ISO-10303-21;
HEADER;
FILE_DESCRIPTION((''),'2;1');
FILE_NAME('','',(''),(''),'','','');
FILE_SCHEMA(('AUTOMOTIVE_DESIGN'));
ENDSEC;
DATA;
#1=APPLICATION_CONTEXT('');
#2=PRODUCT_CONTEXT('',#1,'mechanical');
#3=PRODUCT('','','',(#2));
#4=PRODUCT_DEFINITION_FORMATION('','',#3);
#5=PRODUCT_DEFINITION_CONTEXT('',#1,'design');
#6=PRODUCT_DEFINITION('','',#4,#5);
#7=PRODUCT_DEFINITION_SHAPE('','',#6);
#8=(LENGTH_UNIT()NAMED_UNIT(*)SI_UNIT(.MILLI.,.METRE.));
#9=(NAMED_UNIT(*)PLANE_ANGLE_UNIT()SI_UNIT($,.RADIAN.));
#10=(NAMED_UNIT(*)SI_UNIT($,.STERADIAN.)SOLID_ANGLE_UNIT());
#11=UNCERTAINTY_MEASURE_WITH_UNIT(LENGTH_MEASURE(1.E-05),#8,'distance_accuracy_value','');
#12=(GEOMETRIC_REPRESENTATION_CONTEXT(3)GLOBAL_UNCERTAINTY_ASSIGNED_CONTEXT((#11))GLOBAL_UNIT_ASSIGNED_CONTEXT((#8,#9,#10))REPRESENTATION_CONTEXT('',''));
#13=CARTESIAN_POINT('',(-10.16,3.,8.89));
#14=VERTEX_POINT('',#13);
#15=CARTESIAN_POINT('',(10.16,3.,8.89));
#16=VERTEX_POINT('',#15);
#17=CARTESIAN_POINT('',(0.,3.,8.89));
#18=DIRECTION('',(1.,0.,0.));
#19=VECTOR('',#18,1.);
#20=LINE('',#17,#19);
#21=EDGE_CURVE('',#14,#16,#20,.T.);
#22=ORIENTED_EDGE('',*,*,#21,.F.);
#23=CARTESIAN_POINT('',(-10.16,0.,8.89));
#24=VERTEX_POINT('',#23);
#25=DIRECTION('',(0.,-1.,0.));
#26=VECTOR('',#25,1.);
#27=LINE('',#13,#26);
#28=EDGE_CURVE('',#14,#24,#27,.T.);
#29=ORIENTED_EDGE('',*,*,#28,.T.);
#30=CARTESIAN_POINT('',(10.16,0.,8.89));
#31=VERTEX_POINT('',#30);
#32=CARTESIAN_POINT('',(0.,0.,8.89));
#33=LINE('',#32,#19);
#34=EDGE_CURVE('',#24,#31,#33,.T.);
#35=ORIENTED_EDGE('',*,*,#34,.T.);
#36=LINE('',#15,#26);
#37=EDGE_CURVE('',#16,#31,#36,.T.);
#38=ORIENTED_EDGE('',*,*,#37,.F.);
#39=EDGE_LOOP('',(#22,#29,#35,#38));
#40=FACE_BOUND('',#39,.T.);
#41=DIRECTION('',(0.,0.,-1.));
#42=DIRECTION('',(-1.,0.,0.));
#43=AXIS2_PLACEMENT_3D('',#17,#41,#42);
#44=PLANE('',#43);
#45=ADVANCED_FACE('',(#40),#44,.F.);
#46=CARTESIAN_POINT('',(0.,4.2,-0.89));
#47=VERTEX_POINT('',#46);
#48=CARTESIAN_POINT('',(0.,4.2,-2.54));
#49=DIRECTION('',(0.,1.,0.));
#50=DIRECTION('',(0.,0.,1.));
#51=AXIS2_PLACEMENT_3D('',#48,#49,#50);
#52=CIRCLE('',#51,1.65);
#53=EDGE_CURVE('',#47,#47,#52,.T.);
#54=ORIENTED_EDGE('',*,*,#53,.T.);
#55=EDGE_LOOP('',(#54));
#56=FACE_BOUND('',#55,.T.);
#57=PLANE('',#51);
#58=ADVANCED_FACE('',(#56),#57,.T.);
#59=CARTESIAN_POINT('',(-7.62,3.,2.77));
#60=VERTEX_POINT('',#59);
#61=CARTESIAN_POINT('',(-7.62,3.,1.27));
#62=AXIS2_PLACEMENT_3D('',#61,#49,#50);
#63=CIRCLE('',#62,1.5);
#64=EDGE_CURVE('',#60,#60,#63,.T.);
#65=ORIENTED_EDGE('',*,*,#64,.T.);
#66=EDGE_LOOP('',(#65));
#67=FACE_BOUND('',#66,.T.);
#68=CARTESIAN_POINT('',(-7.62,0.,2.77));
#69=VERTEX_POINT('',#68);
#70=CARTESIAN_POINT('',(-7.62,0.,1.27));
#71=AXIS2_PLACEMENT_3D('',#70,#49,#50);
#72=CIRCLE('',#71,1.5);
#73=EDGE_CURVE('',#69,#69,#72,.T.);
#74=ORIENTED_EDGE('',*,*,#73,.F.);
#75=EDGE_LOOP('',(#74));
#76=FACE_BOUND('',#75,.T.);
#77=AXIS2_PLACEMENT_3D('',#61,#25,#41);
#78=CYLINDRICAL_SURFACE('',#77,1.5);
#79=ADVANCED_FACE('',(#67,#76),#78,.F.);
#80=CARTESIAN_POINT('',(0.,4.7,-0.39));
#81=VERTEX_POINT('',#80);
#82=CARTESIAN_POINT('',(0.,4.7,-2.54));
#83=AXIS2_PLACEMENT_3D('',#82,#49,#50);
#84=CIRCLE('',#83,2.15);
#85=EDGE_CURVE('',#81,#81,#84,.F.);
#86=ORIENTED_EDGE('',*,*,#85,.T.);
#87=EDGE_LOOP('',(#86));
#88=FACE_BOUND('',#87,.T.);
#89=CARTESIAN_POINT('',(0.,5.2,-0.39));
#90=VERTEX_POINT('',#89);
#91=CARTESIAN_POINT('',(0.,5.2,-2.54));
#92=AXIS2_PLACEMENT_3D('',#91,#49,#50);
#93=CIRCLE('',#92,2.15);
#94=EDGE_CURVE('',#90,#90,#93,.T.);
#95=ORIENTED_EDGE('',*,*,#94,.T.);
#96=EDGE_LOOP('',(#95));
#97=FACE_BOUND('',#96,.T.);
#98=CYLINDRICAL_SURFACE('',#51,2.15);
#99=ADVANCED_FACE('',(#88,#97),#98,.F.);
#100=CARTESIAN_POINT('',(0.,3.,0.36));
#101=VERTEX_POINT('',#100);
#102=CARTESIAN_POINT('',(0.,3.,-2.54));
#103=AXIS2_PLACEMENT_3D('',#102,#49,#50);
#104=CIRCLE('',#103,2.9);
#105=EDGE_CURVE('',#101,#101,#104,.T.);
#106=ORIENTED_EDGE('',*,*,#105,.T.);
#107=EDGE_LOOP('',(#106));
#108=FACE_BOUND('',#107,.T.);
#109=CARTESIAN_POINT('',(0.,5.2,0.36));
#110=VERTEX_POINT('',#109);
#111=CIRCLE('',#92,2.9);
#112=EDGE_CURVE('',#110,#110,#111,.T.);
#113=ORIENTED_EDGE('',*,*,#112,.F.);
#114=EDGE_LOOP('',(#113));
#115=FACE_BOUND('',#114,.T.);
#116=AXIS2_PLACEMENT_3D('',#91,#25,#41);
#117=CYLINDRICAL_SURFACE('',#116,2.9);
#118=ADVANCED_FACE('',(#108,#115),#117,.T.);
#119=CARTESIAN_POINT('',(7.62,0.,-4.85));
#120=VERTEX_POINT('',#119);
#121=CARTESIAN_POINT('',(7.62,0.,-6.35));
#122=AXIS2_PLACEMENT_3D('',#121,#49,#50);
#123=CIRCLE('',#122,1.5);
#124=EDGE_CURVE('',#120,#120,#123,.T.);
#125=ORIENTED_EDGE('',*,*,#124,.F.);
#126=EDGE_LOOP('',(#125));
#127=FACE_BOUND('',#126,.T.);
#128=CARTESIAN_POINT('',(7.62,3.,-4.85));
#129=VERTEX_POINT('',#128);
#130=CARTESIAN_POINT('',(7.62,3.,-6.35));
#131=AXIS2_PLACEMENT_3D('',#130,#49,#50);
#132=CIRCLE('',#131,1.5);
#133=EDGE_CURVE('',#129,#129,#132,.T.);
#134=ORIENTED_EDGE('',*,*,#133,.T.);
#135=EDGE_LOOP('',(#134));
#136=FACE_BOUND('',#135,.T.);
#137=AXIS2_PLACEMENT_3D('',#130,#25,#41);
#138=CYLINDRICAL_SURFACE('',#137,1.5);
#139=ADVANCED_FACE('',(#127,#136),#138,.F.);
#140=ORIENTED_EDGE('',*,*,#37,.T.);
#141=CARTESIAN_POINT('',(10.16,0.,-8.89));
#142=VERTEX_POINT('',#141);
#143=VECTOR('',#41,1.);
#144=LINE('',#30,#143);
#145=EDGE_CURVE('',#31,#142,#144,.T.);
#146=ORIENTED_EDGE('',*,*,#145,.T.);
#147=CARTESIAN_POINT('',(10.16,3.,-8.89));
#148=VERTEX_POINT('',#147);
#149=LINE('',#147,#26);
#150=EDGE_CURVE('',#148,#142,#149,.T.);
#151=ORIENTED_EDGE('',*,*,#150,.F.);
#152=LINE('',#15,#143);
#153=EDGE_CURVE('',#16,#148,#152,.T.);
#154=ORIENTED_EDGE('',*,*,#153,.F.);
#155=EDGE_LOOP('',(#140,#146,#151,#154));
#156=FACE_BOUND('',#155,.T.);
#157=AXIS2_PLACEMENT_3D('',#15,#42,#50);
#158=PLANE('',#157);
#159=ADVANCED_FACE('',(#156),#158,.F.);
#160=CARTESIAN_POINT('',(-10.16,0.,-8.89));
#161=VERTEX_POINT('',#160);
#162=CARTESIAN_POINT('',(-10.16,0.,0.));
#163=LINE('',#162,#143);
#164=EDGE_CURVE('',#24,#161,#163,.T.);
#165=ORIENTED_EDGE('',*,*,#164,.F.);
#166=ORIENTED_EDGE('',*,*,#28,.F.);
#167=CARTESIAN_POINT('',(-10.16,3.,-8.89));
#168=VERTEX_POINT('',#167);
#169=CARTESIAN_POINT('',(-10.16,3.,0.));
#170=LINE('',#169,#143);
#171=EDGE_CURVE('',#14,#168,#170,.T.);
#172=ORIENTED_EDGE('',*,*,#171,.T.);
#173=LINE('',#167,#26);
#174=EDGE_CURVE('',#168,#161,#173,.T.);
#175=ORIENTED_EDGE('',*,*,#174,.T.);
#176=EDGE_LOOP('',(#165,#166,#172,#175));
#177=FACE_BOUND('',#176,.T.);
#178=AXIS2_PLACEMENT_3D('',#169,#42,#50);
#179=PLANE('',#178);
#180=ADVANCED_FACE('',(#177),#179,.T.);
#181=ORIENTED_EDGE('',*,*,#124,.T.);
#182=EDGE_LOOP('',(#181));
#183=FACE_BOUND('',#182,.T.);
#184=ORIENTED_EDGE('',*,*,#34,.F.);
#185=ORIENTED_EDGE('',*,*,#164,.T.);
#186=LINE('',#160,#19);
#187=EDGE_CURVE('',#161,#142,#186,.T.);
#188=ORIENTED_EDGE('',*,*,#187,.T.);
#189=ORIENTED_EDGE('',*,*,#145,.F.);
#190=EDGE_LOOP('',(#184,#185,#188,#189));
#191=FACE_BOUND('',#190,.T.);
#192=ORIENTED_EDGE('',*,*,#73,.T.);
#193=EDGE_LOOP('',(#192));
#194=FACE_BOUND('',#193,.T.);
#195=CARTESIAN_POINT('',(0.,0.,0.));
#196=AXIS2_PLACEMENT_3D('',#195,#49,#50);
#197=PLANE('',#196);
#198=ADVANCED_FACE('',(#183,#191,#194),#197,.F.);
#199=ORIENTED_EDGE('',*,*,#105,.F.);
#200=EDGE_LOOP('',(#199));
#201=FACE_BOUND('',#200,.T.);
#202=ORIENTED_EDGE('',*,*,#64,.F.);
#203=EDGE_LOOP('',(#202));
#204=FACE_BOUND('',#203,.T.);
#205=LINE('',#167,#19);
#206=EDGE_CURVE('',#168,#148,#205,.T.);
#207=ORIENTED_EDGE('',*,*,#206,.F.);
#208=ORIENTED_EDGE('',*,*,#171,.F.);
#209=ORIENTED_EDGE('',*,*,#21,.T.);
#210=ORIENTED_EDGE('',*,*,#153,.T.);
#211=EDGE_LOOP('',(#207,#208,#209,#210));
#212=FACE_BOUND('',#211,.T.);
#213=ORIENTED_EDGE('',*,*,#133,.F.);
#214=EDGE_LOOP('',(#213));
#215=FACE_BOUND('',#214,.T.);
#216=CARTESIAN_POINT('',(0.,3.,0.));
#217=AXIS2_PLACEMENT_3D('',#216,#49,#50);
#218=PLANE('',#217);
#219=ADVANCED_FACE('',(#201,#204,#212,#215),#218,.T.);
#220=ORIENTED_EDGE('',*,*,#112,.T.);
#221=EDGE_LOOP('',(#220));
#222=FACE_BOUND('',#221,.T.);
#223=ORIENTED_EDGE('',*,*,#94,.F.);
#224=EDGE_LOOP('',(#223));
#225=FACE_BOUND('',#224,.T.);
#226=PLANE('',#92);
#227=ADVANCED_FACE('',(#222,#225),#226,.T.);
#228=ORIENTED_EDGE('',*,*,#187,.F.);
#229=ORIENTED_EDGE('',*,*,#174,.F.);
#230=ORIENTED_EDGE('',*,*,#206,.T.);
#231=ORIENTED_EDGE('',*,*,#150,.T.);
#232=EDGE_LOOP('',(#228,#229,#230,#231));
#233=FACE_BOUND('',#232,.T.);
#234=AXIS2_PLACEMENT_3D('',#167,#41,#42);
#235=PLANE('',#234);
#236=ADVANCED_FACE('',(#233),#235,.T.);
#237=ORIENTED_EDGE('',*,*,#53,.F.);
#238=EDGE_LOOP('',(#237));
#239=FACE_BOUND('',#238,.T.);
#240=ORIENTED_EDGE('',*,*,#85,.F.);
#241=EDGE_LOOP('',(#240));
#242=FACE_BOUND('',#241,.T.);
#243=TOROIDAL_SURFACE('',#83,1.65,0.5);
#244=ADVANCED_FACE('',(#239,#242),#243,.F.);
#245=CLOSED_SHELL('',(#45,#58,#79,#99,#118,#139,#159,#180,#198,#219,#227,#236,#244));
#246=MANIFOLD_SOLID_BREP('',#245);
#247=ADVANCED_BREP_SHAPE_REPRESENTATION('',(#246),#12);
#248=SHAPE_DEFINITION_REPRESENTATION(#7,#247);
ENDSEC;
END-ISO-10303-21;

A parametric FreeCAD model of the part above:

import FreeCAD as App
import Part
import Sketcher

V = App.Vector
Q = App.Units.Quantity


def edges_at(feature, points):
    """Names of the edges that pass closest to the given points."""
    edges = feature.Shape.Edges
    near = lambda p: min(range(len(edges)), key=lambda i: edges[i].distToShape(Part.Vertex(*p))[0])
    return sorted({f"Edge{near(p) + 1}" for p in points})


def add_polygon(sketch, points):
    """Adds a closed chain of lines whose ends are joined by coincident constraints."""
    first, n = sketch.GeometryCount, len(points)
    for a, b in zip(points, points[1:] + points[:1]):
        sketch.addGeometry(Part.LineSegment(App.Vector(*a, 0), App.Vector(*b, 0)), False)
    for i in range(n):
        sketch.addConstraint(Sketcher.Constraint("Coincident", first + i, 2, first + (i + 1) % n, 1))

doc = App.newDocument("Part")
params = doc.addObject("Spreadsheet::Sheet", "Params")
for row, (alias, value) in enumerate([
    ("sketch1_diameter", "3 mm"),
    ("sketch1_width", "20.32 mm"),
    ("sketch1_height", "17.78 mm"),
    ("pad1_length", "3 mm"),
    ("sketch2_diameter", "5.8 mm"),
    ("pad2_length", "2.2 mm"),
    ("sketch3_diameter", "4.3 mm"),
    ("pocket1_length", "1 mm"),
    ("fillet_radius", "0.5 mm"),
], start=1):
    params.set(f"A{row}", alias)
    params.set(f"B{row}", "=" + value)
    params.setAlias(f"B{row}", alias)

body = doc.addObject("PartDesign::Body", "Body")

# Sketch on XZ plane
sketch1 = doc.addObject("Sketcher::SketchObject", "Sketch")
body.addObject(sketch1)
sketch1.AttachmentSupport = (doc.XZ_Plane, [""])
sketch1.MapMode = "FlatFace"
add_polygon(sketch1, [(-10.2, -8.9), (-10.2, 8.9), (10.2, 8.9), (10.2, -8.9)])  # lines 0-3
sketch1.addGeometry(Part.Circle(V(-7.6, 1.3, 0), V(0, 0, 1), 1.5), False)  # 4
sketch1.addGeometry(Part.Circle(V(7.6, -6.3, 0), V(0, 0, 1), 1.5), False)  # 5
sketch1.addConstraint(Sketcher.Constraint("Vertical", 0))
sketch1.addConstraint(Sketcher.Constraint("Horizontal", 1))
sketch1.addConstraint(Sketcher.Constraint("Vertical", 2))
sketch1.addConstraint(Sketcher.Constraint("Horizontal", 3))
sketch1.addConstraint(Sketcher.Constraint("Equal", 4, 5))
sketch1.addConstraint(Sketcher.Constraint("Symmetric", 0, 2, 2, 2, -1, 1))
sketch1.addConstraint(Sketcher.Constraint("Diameter", 4, Q("3 mm")))
sketch1.addConstraint(Sketcher.Constraint("DistanceX", 1, 1, 1, 2, Q("20.32 mm")))
sketch1.addConstraint(Sketcher.Constraint("DistanceY", 0, 1, 0, 2, Q("17.78 mm")))
sketch1.addConstraint(Sketcher.Constraint("DistanceX", 4, 3, -1, 1, Q("7.62 mm")))
sketch1.addConstraint(Sketcher.Constraint("DistanceY", -1, 1, 4, 3, Q("1.27 mm")))
sketch1.addConstraint(Sketcher.Constraint("DistanceX", -1, 1, 5, 3, Q("7.62 mm")))
sketch1.addConstraint(Sketcher.Constraint("DistanceY", 5, 3, -1, 1, Q("6.35 mm")))
sketch1.setExpression("Constraints[10]", "Params.sketch1_diameter")
sketch1.setExpression("Constraints[11]", "Params.sketch1_width")
sketch1.setExpression("Constraints[12]", "Params.sketch1_height")
pad1 = doc.addObject("PartDesign::Pad", "Pad")
body.addObject(pad1)
pad1.Profile = sketch1
pad1.setExpression("Length", "Params.pad1_length")
pad1.Reversed = True

# Sketch on XZ plane
sketch2 = doc.addObject("Sketcher::SketchObject", "Sketch001")
body.addObject(sketch2)
sketch2.AttachmentSupport = (doc.XZ_Plane, [""])
sketch2.MapMode = "FlatFace"
sketch2.AttachmentOffset = App.Placement(V(0, 0, -3), App.Rotation())
sketch2.addGeometry(Part.Circle(V(0, -2.5, 0), V(0, 0, 1), 2.9), False)
sketch2.addConstraint(Sketcher.Constraint("PointOnObject", 0, 3, -2))
sketch2.addConstraint(Sketcher.Constraint("Diameter", 0, Q("5.8 mm")))
sketch2.addConstraint(Sketcher.Constraint("DistanceY", 0, 3, -1, 1, Q("2.54 mm")))
sketch2.setExpression("Constraints[1]", "Params.sketch2_diameter")
pad2 = doc.addObject("PartDesign::Pad", "Pad001")
body.addObject(pad2)
pad2.Profile = sketch2
pad2.setExpression("Length", "Params.pad2_length")
pad2.Reversed = True

# Sketch on XZ plane
sketch3 = doc.addObject("Sketcher::SketchObject", "Sketch002")
body.addObject(sketch3)
sketch3.AttachmentSupport = (doc.XZ_Plane, [""])
sketch3.MapMode = "FlatFace"
sketch3.AttachmentOffset = App.Placement(V(0, 0, -5.2), App.Rotation())
sketch3.addGeometry(Part.Circle(V(0, -2.5, 0), V(0, 0, 1), 2.1), False)
sketch3.addConstraint(Sketcher.Constraint("PointOnObject", 0, 3, -2))
sketch3.addConstraint(Sketcher.Constraint("Diameter", 0, Q("4.3 mm")))
sketch3.addConstraint(Sketcher.Constraint("DistanceY", 0, 3, -1, 1, Q("2.54 mm")))
sketch3.setExpression("Constraints[1]", "Params.sketch3_diameter")
pocket1 = doc.addObject("PartDesign::Pocket", "Pocket")
body.addObject(pocket1)
pocket1.Profile = sketch3
pocket1.setExpression("Length", "Params.pocket1_length")
pocket1.Reversed = True
doc.recompute()

fillet = doc.addObject("PartDesign::Fillet", "Fillet")
body.addObject(fillet)
fillet.Base = (pocket1, edges_at(pocket1, [(0, 4.2, -4.69)]))
fillet.setExpression("Radius", "Params.fillet_radius")

doc.recompute()
